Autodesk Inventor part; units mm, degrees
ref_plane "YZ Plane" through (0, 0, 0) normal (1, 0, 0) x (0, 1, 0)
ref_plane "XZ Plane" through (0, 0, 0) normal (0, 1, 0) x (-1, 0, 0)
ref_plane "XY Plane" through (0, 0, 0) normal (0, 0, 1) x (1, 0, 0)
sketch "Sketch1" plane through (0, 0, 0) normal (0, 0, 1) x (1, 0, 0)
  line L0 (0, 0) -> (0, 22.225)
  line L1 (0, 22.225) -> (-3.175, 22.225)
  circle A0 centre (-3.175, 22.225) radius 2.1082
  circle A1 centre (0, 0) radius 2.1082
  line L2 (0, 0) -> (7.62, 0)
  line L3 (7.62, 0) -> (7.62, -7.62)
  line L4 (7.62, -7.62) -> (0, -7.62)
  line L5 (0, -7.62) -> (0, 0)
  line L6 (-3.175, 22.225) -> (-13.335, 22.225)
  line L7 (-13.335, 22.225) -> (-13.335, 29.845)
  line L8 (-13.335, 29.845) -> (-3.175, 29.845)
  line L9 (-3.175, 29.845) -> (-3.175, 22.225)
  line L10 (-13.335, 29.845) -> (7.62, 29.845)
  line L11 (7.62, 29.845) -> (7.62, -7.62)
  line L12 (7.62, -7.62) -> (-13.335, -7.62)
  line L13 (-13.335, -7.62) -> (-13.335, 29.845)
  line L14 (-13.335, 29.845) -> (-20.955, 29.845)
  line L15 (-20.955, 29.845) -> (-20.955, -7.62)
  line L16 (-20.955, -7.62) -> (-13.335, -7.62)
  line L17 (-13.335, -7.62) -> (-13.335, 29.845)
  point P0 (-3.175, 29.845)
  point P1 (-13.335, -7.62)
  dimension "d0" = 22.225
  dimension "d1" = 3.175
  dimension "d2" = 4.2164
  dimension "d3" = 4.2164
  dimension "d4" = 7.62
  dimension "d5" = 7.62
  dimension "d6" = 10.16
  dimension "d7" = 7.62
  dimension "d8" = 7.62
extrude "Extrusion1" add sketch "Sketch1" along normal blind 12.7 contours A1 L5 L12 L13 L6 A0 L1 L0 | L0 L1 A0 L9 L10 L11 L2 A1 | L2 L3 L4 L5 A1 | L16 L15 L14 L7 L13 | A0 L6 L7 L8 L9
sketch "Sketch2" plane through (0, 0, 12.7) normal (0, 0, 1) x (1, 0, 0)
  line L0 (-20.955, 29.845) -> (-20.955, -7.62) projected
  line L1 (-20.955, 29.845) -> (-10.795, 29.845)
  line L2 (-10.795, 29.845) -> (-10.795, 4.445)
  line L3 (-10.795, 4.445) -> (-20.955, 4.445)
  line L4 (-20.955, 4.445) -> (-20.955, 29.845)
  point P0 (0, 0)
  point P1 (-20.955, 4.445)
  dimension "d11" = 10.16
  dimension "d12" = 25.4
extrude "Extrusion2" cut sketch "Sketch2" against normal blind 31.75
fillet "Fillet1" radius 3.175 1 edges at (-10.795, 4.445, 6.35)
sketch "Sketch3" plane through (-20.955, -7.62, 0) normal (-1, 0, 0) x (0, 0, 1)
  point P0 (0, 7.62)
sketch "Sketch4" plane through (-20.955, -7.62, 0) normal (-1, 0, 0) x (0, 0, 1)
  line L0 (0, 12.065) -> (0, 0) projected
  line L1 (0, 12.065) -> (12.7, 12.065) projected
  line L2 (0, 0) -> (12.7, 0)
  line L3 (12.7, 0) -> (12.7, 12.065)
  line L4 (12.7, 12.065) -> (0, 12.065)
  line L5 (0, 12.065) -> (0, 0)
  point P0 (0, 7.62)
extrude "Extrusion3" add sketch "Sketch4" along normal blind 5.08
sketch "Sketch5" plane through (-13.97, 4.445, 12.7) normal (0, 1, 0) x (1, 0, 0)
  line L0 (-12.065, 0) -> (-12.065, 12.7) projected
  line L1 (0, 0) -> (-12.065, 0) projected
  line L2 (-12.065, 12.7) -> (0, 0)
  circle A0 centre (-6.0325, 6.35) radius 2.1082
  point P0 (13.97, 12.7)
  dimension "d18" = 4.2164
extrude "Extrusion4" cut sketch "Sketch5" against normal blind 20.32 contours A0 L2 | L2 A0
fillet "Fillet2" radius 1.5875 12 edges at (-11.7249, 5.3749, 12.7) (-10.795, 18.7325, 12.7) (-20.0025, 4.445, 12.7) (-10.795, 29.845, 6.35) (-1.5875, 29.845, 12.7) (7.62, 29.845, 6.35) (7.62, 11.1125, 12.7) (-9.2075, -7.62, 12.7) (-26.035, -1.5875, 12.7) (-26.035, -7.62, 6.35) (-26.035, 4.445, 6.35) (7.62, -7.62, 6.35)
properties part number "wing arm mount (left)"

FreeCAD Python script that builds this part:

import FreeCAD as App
import Part
import Sketcher

V = App.Vector
Q = App.Units.Quantity


def edges_at(feature, points):
    """Names of the edges that pass closest to the given points."""
    edges = feature.Shape.Edges
    near = lambda p: min(range(len(edges)), key=lambda i: edges[i].distToShape(Part.Vertex(*p))[0])
    return sorted({f"Edge{near(p) + 1}" for p in points})


def add_polygon(sketch, points):
    """Adds a closed chain of lines whose ends are joined by coincident constraints."""
    first, n = sketch.GeometryCount, len(points)
    for a, b in zip(points, points[1:] + points[:1]):
        sketch.addGeometry(Part.LineSegment(App.Vector(*a, 0), App.Vector(*b, 0)), False)
    for i in range(n):
        sketch.addConstraint(Sketcher.Constraint("Coincident", first + i, 2, first + (i + 1) % n, 1))

doc = App.newDocument("Part")
body = doc.addObject("PartDesign::Body", "Body")

# Sketch on XY plane
sketch1 = body.newObject("Sketcher::SketchObject", "Sketch")
sketch1.AttachmentSupport = (doc.getObject("XY_Plane"), [""])
sketch1.MapMode = "FlatFace"
add_polygon(sketch1, [(7.6, -7.6), (7.6, 29.8), (-21, 29.8), (-21, -7.6)])  # lines 0-3
sketch1.addGeometry(Part.Circle(V(0, 0, 0), V(0, 0, 1), 2.1), False)  # 4
sketch1.addGeometry(Part.Circle(V(-3.2, 22.2, 0), V(0, 0, 1), 2.1), False)  # 5
sketch1.addConstraint([
    Sketcher.Constraint("Vertical", 0),
    Sketcher.Constraint("Horizontal", 1),
    Sketcher.Constraint("Vertical", 2),
    Sketcher.Constraint("Horizontal", 3),
    Sketcher.Constraint("Coincident", 4, 3, -1, 1),
    Sketcher.Constraint("Equal", 4, 5),
    Sketcher.Constraint("Diameter", 4, Q("0.166 in")),
    Sketcher.Constraint("DistanceX", -1, 1, 0, 2, Q("0.3 in")),
    Sketcher.Constraint("DistanceY", 2, 2, -1, 1, Q("0.3 in")),
    Sketcher.Constraint("DistanceY", 5, 3, 0, 2, Q("0.3 in")),
    Sketcher.Constraint("DistanceX", 5, 3, -1, 1, Q("0.125 in")),
    Sketcher.Constraint("DistanceY", -1, 1, 5, 3, Q("0.875 in")),
    Sketcher.Constraint("DistanceX", 1, 2, 5, 3, Q("0.7 in")),
])
pad1 = body.newObject("PartDesign::Pad", "Pad")
pad1.Profile = sketch1
pad1.Length = Q("0.5 in")

# Sketch on XY plane
sketch2 = body.newObject("Sketcher::SketchObject", "Sketch001")
sketch2.AttachmentSupport = (doc.getObject("XY_Plane"), [""])
sketch2.MapMode = "FlatFace"
sketch2.AttachmentOffset = App.Placement(V(0, 0, 0.5 * 25.4), App.Rotation())
add_polygon(sketch2, [(-11, 30), (-21, 30), (-21, 4), (-11, 4)])  # lines 0-3
sketch2.addConstraint([
    Sketcher.Constraint("Horizontal", 0),
    Sketcher.Constraint("Vertical", 1),
    Sketcher.Constraint("Horizontal", 2),
    Sketcher.Constraint("Vertical", 3),
    Sketcher.Constraint("DistanceY", 1, 2, 1, 1, Q("1 in")),
    Sketcher.Constraint("DistanceX", 0, 2, 0, 1, Q("0.4 in")),
    Sketcher.Constraint("DistanceX", 0, 2, -1, 1, Q("0.825 in")),
    Sketcher.Constraint("DistanceY", -1, 1, 0, 2, Q("1.175 in")),
])
pocket1 = body.newObject("PartDesign::Pocket", "Pocket")
pocket1.Profile = sketch2
pocket1.Length = Q("1.25 in")
doc.recompute()

fillet = body.newObject("PartDesign::Fillet", "Fillet")
fillet.Base = (pocket1, edges_at(pocket1, [(-10.795, 4.445, 6.35)]))
fillet.Radius = Q("0.125 in")

# Sketch on YZ plane
sketch3 = body.newObject("Sketcher::SketchObject", "Sketch002")
sketch3.AttachmentSupport = (doc.getObject("YZ_Plane"), [""])
sketch3.MapMode = "FlatFace"
sketch3.AttachmentOffset = App.Placement(V(0, 0, -0.825 * 25.4), App.Rotation())
add_polygon(sketch3, [(4, 13), (4, 0), (-8, 0), (-8, 13)])  # lines 0-3
sketch3.addConstraint([
    Sketcher.Constraint("Vertical", 0),
    Sketcher.Constraint("Horizontal", 1),
    Sketcher.Constraint("Vertical", 2),
    Sketcher.Constraint("Horizontal", 3),
    Sketcher.Constraint("PointOnObject", 0, 2, -1),
    Sketcher.Constraint("DistanceY", 0, 2, 0, 1, Q("0.5 in")),
    Sketcher.Constraint("DistanceX", 1, 2, -1, 1, Q("0.3 in")),
    Sketcher.Constraint("DistanceX", 1, 2, 1, 1, Q("0.475 in")),
])
pad2 = body.newObject("PartDesign::Pad", "Pad001")
pad2.Profile = sketch3
pad2.Length = Q("0.2 in")
pad2.Reversed = True

# Sketch on XZ plane
sketch4 = body.newObject("Sketcher::SketchObject", "Sketch003")
sketch4.AttachmentSupport = (doc.getObject("XZ_Plane"), [""])
sketch4.MapMode = "FlatFace"
sketch4.AttachmentOffset = App.Placement(V(0, 0, -0.175 * 25.4), App.Rotation())
sketch4.addGeometry(Part.Circle(V(-20, 6.3, 0), V(0, 0, 1), 2.1), False)
sketch4.addConstraint([
    Sketcher.Constraint("Diameter", 0, Q("0.166 in")),
    Sketcher.Constraint("DistanceY", -1, 1, 0, 3, Q("0.25 in")),
    Sketcher.Constraint("DistanceX", 0, 3, -1, 1, Q("0.7875 in")),
])
pocket2 = body.newObject("PartDesign::Pocket", "Pocket001")
pocket2.Profile = sketch4
pocket2.Length = Q("0.8 in")
pocket2.Reversed = True
doc.recompute()

fillet2 = body.newObject("PartDesign::Fillet", "Fillet001")
fillet2.Base = (pocket2, edges_at(pocket2, [
    (-11.725, 5.375, 12.7),
    (-10.795, 18.733, 12.7),
    (-20.003, 4.445, 12.7),
    (-10.795, 29.845, 6.35),
    (-1.587, 29.845, 12.7),
    (7.62, 29.845, 6.35),
    (7.62, 11.113, 12.7),
    (-9.207, -7.62, 12.7),
    (-26.035, -1.587, 12.7),
    (-26.035, -7.62, 6.35),
    (-26.035, 4.445, 6.35),
    (7.62, -7.62, 6.35),
]))
fillet2.Radius = Q("0.0625 in")

doc.recompute()
